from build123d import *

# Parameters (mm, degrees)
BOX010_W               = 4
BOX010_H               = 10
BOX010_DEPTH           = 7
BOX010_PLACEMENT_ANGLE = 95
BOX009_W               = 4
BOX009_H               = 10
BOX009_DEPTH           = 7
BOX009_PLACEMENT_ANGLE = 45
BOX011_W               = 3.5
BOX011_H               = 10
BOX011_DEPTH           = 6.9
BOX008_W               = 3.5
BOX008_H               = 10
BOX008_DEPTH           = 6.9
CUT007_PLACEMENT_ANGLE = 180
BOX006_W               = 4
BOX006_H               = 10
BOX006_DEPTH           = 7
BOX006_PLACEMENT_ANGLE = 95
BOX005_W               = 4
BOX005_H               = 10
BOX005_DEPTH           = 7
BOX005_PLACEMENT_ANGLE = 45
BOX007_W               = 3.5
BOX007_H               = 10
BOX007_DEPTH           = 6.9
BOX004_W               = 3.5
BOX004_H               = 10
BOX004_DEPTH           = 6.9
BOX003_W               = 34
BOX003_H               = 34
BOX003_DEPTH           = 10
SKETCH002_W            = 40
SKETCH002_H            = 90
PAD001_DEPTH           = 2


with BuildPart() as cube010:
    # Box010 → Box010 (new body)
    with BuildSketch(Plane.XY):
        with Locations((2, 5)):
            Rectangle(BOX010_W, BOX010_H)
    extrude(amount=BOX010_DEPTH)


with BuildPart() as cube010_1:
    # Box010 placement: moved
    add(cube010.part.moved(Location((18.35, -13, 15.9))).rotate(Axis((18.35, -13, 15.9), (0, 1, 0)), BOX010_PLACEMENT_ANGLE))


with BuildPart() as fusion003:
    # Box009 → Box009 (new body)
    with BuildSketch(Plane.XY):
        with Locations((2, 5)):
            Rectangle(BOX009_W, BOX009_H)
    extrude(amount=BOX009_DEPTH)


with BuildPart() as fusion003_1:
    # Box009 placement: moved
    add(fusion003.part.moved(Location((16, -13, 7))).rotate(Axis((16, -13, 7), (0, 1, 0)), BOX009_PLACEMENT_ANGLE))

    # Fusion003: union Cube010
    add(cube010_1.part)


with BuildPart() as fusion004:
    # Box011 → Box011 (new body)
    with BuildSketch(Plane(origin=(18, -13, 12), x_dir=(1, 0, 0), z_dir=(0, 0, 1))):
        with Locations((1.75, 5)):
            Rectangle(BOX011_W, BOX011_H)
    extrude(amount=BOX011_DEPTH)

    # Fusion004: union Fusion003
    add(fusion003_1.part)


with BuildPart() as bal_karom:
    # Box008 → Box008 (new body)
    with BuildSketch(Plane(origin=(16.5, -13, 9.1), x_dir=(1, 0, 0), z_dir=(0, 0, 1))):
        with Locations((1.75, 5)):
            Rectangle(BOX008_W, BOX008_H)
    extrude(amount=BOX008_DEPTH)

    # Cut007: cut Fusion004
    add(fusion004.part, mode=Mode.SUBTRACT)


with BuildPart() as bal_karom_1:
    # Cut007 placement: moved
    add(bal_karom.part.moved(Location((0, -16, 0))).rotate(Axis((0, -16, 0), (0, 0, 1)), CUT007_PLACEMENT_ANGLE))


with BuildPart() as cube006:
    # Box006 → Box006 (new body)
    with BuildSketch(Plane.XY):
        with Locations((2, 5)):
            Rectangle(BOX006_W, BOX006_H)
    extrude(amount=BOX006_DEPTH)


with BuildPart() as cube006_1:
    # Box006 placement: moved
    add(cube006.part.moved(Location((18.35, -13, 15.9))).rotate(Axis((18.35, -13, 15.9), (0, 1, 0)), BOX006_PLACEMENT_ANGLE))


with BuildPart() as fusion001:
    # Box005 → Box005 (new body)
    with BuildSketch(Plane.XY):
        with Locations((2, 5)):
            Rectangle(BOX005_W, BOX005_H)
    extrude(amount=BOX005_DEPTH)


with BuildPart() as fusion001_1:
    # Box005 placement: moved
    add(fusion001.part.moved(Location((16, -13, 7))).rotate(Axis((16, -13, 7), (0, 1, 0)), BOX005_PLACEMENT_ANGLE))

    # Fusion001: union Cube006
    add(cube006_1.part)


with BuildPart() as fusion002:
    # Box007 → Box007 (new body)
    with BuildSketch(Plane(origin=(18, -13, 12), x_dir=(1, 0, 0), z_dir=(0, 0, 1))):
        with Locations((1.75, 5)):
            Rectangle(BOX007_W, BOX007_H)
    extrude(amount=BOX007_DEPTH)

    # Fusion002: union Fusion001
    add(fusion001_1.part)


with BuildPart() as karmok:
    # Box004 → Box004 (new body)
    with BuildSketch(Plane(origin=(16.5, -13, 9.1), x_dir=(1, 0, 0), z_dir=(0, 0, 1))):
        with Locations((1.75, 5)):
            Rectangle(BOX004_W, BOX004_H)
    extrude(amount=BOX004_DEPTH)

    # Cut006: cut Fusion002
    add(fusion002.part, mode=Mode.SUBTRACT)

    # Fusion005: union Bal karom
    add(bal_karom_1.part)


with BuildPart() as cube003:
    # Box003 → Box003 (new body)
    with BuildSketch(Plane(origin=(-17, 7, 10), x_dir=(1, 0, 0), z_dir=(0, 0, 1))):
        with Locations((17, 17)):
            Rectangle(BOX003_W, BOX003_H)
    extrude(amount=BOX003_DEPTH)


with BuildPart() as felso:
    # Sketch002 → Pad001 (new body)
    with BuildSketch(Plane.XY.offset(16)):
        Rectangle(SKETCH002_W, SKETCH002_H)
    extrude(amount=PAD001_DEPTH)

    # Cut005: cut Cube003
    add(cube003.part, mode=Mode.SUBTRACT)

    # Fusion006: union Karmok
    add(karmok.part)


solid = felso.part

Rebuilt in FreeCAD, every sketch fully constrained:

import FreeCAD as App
import Part
import Sketcher
from FreeCAD import Vector


def add_polygon(sketch, points):
    """Adds a closed chain of lines whose ends are joined by coincident constraints."""
    first, n = sketch.GeometryCount, len(points)
    for a, b in zip(points, points[1:] + points[:1]):
        sketch.addGeometry(Part.LineSegment(App.Vector(*a, 0), App.Vector(*b, 0)), False)
    for i in range(n):
        sketch.addConstraint(Sketcher.Constraint("Coincident", first + i, 2, first + (i + 1) % n, 1))

doc = App.newDocument("Part")
body = doc.addObject("PartDesign::Body", "Body")

sketch1 = doc.addObject("Sketcher::SketchObject", "Sketch")
body.addObject(sketch1)
sketch1.AttachmentSupport = (doc.XY_Plane, [""])
sketch1.MapMode = "FlatFace"
add_polygon(sketch1, [(0, 10), (0, 0), (4, 0), (4, 10)])
sketch1.addConstraint([
    Sketcher.Constraint("Vertical", 0),
    Sketcher.Constraint("Horizontal", 1),
    Sketcher.Constraint("Vertical", 2),
    Sketcher.Constraint("Horizontal", 3),
    Sketcher.Constraint("Coincident", 0, 2, -1, 1),
    Sketcher.Constraint("DistanceX", 1, 1, 1, 2, 4.0),
    Sketcher.Constraint("DistanceY", 0, 2, 0, 1, 10.0),
])
pad1 = doc.addObject("PartDesign::Pad", "Pad")
body.addObject(pad1)
pad1.Profile = sketch1
pad1.Length = 7
body2 = doc.addObject("PartDesign::Body", "Body001")
doc.recompute()

body.Placement = App.Placement(Vector(18.35, -13, 15.9), App.Rotation(Vector(0, 1, 0), 95))
boolean = doc.addObject("PartDesign::Boolean", "Boolean")
body2.addObject(boolean)
boolean.Type = "Fuse"
boolean.addObjects([body])
body3 = doc.addObject("PartDesign::Body", "Body002")

sketch2 = doc.addObject("Sketcher::SketchObject", "Sketch001")
body3.addObject(sketch2)
sketch2.AttachmentSupport = (doc.getObject("XY_Plane002"), [""])
sketch2.MapMode = "FlatFace"
add_polygon(sketch2, [(0, 10), (0, 0), (4, 0), (4, 10)])
sketch2.addConstraint([
    Sketcher.Constraint("Vertical", 0),
    Sketcher.Constraint("Horizontal", 1),
    Sketcher.Constraint("Vertical", 2),
    Sketcher.Constraint("Horizontal", 3),
    Sketcher.Constraint("Coincident", 0, 2, -1, 1),
    Sketcher.Constraint("DistanceX", 1, 1, 1, 2, 4.0),
    Sketcher.Constraint("DistanceY", 0, 2, 0, 1, 10.0),
])
pad2 = doc.addObject("PartDesign::Pad", "Pad001")
body3.addObject(pad2)
pad2.Profile = sketch2
pad2.Length = 7
body4 = doc.addObject("PartDesign::Body", "Body003")
doc.recompute()

body3.Placement = App.Placement(Vector(16, -13, 7), App.Rotation(Vector(0, 1, 0), 45))
boolean2 = doc.addObject("PartDesign::Boolean", "Boolean001")
body4.addObject(boolean2)
boolean2.Type = "Fuse"
boolean2.addObjects([body3])
doc.recompute()

boolean3 = doc.addObject("PartDesign::Boolean", "Boolean002")
body4.addObject(boolean3)
boolean3.Type = "Fuse"
boolean3.addObjects([body2])
body5 = doc.addObject("PartDesign::Body", "Body004")

sketch3 = doc.addObject("Sketcher::SketchObject", "Sketch002")
body5.addObject(sketch3)
sketch3.AttachmentSupport = (doc.getObject("XY_Plane004"), [""])
sketch3.MapMode = "FlatFace"
sketch3.AttachmentOffset = App.Placement(Vector(0, 0, 12), App.Rotation())
add_polygon(sketch3, [(18, -3), (18, -13), (21.5, -13), (21.5, -3)])
sketch3.addConstraint([
    Sketcher.Constraint("Vertical", 0),
    Sketcher.Constraint("Horizontal", 1),
    Sketcher.Constraint("Vertical", 2),
    Sketcher.Constraint("Horizontal", 3),
    Sketcher.Constraint("DistanceY", 0, 2, 0, 1, 10.0),
    Sketcher.Constraint("DistanceX", 1, 1, 1, 2, 3.5),
    Sketcher.Constraint("DistanceX", -1, 1, 0, 2, 18.0),
    Sketcher.Constraint("DistanceY", 0, 2, -1, 1, 13.0),
])
pad3 = doc.addObject("PartDesign::Pad", "Pad002")
body5.addObject(pad3)
pad3.Profile = sketch3
pad3.Length = 6.9
doc.recompute()

boolean4 = doc.addObject("PartDesign::Boolean", "Boolean003")
body5.addObject(boolean4)
boolean4.Type = "Fuse"
boolean4.addObjects([body4])
body6 = doc.addObject("PartDesign::Body", "Body005")

sketch4 = doc.addObject("Sketcher::SketchObject", "Sketch003")
body6.addObject(sketch4)
sketch4.AttachmentSupport = (doc.getObject("XY_Plane005"), [""])
sketch4.MapMode = "FlatFace"
sketch4.AttachmentOffset = App.Placement(Vector(0, 0, 9.1), App.Rotation())
add_polygon(sketch4, [(16.5, -3), (16.5, -13), (20, -13), (20, -3)])
sketch4.addConstraint([
    Sketcher.Constraint("Vertical", 0),
    Sketcher.Constraint("Horizontal", 1),
    Sketcher.Constraint("Vertical", 2),
    Sketcher.Constraint("Horizontal", 3),
    Sketcher.Constraint("DistanceY", 0, 2, 0, 1, 10.0),
    Sketcher.Constraint("DistanceX", 1, 1, 1, 2, 3.5),
    Sketcher.Constraint("DistanceY", 0, 2, -1, 1, 13.0),
    Sketcher.Constraint("DistanceX", -1, 1, 1, 2, 20.0),
])
pad4 = doc.addObject("PartDesign::Pad", "Pad003")
body6.addObject(pad4)
pad4.Profile = sketch4
pad4.Length = 6.9
doc.recompute()

boolean5 = doc.addObject("PartDesign::Boolean", "Boolean004")
body6.addObject(boolean5)
boolean5.Type = "Cut"
boolean5.addObjects([body5])
body7 = doc.addObject("PartDesign::Body", "Body006")
doc.recompute()

body6.Placement = App.Placement(Vector(0, -16, 0), App.Rotation(Vector(0, 0, 1), 180))
boolean6 = doc.addObject("PartDesign::Boolean", "Boolean005")
body7.addObject(boolean6)
boolean6.Type = "Fuse"
boolean6.addObjects([body6])
body8 = doc.addObject("PartDesign::Body", "Body007")

sketch5 = doc.addObject("Sketcher::SketchObject", "Sketch004")
body8.addObject(sketch5)
sketch5.AttachmentSupport = (doc.getObject("XY_Plane007"), [""])
sketch5.MapMode = "FlatFace"
add_polygon(sketch5, [(0, 10), (0, 0), (4, 0), (4, 10)])
sketch5.addConstraint([
    Sketcher.Constraint("Vertical", 0),
    Sketcher.Constraint("Horizontal", 1),
    Sketcher.Constraint("Vertical", 2),
    Sketcher.Constraint("Horizontal", 3),
    Sketcher.Constraint("Coincident", 0, 2, -1, 1),
    Sketcher.Constraint("DistanceX", 1, 1, 1, 2, 4.0),
    Sketcher.Constraint("DistanceY", 0, 2, 0, 1, 10.0),
])
pad5 = doc.addObject("PartDesign::Pad", "Pad004")
body8.addObject(pad5)
pad5.Profile = sketch5
pad5.Length = 7
body9 = doc.addObject("PartDesign::Body", "Body008")
doc.recompute()

body8.Placement = App.Placement(Vector(18.35, -13, 15.9), App.Rotation(Vector(0, 1, 0), 95))
boolean7 = doc.addObject("PartDesign::Boolean", "Boolean006")
body9.addObject(boolean7)
boolean7.Type = "Fuse"
boolean7.addObjects([body8])
body10 = doc.addObject("PartDesign::Body", "Body009")

sketch6 = doc.addObject("Sketcher::SketchObject", "Sketch005")
body10.addObject(sketch6)
sketch6.AttachmentSupport = (doc.getObject("XY_Plane009"), [""])
sketch6.MapMode = "FlatFace"
add_polygon(sketch6, [(0, 10), (0, 0), (4, 0), (4, 10)])
sketch6.addConstraint([
    Sketcher.Constraint("Vertical", 0),
    Sketcher.Constraint("Horizontal", 1),
    Sketcher.Constraint("Vertical", 2),
    Sketcher.Constraint("Horizontal", 3),
    Sketcher.Constraint("Coincident", 0, 2, -1, 1),
    Sketcher.Constraint("DistanceX", 1, 1, 1, 2, 4.0),
    Sketcher.Constraint("DistanceY", 0, 2, 0, 1, 10.0),
])
pad6 = doc.addObject("PartDesign::Pad", "Pad005")
body10.addObject(pad6)
pad6.Profile = sketch6
pad6.Length = 7
body11 = doc.addObject("PartDesign::Body", "Body010")
doc.recompute()

body10.Placement = App.Placement(Vector(16, -13, 7), App.Rotation(Vector(0, 1, 0), 45))
boolean8 = doc.addObject("PartDesign::Boolean", "Boolean007")
body11.addObject(boolean8)
boolean8.Type = "Fuse"
boolean8.addObjects([body10])
doc.recompute()

boolean9 = doc.addObject("PartDesign::Boolean", "Boolean008")
body11.addObject(boolean9)
boolean9.Type = "Fuse"
boolean9.addObjects([body9])
body12 = doc.addObject("PartDesign::Body", "Body011")

sketch7 = doc.addObject("Sketcher::SketchObject", "Sketch006")
body12.addObject(sketch7)
sketch7.AttachmentSupport = (doc.getObject("XY_Plane011"), [""])
sketch7.MapMode = "FlatFace"
sketch7.AttachmentOffset = App.Placement(Vector(0, 0, 12), App.Rotation())
add_polygon(sketch7, [(18, -3), (18, -13), (21.5, -13), (21.5, -3)])
sketch7.addConstraint([
    Sketcher.Constraint("Vertical", 0),
    Sketcher.Constraint("Horizontal", 1),
    Sketcher.Constraint("Vertical", 2),
    Sketcher.Constraint("Horizontal", 3),
    Sketcher.Constraint("DistanceY", 0, 2, 0, 1, 10.0),
    Sketcher.Constraint("DistanceX", 1, 1, 1, 2, 3.5),
    Sketcher.Constraint("DistanceX", -1, 1, 0, 2, 18.0),
    Sketcher.Constraint("DistanceY", 0, 2, -1, 1, 13.0),
])
pad7 = doc.addObject("PartDesign::Pad", "Pad006")
body12.addObject(pad7)
pad7.Profile = sketch7
pad7.Length = 6.9
doc.recompute()

boolean10 = doc.addObject("PartDesign::Boolean", "Boolean009")
body12.addObject(boolean10)
boolean10.Type = "Fuse"
boolean10.addObjects([body11])
body13 = doc.addObject("PartDesign::Body", "Body012")
body13.AllowCompound = True

sketch8 = doc.addObject("Sketcher::SketchObject", "Sketch007")
body13.addObject(sketch8)
sketch8.AttachmentSupport = (doc.getObject("XY_Plane012"), [""])
sketch8.MapMode = "FlatFace"
sketch8.AttachmentOffset = App.Placement(Vector(0, 0, 9.1), App.Rotation())
add_polygon(sketch8, [(16.5, -3), (16.5, -13), (20, -13), (20, -3)])
sketch8.addConstraint([
    Sketcher.Constraint("Vertical", 0),
    Sketcher.Constraint("Horizontal", 1),
    Sketcher.Constraint("Vertical", 2),
    Sketcher.Constraint("Horizontal", 3),
    Sketcher.Constraint("DistanceY", 0, 2, 0, 1, 10.0),
    Sketcher.Constraint("DistanceX", 1, 1, 1, 2, 3.5),
    Sketcher.Constraint("DistanceY", 0, 2, -1, 1, 13.0),
    Sketcher.Constraint("DistanceX", -1, 1, 1, 2, 20.0),
])
pad8 = doc.addObject("PartDesign::Pad", "Pad007")
body13.addObject(pad8)
pad8.Profile = sketch8
pad8.Length = 6.9
doc.recompute()

boolean11 = doc.addObject("PartDesign::Boolean", "Boolean010")
body13.addObject(boolean11)
boolean11.Type = "Cut"
boolean11.addObjects([body12])
doc.recompute()

boolean12 = doc.addObject("PartDesign::Boolean", "Boolean011")
body13.addObject(boolean12)
boolean12.Type = "Fuse"
boolean12.addObjects([body7])
body14 = doc.addObject("PartDesign::Body", "Body013")

sketch9 = doc.addObject("Sketcher::SketchObject", "Sketch008")
body14.addObject(sketch9)
sketch9.AttachmentSupport = (doc.getObject("XY_Plane013"), [""])
sketch9.MapMode = "FlatFace"
sketch9.AttachmentOffset = App.Placement(Vector(0, 0, 10), App.Rotation())
add_polygon(sketch9, [(-17, 41), (-17, 7), (17, 7), (17, 41)])
sketch9.addConstraint([
    Sketcher.Constraint("Vertical", 0),
    Sketcher.Constraint("Horizontal", 1),
    Sketcher.Constraint("Vertical", 2),
    Sketcher.Constraint("Horizontal", 3),
    Sketcher.Constraint("Equal", 3, 0),
    Sketcher.Constraint("DistanceX", 1, 1, 1, 2, 34.0),
    Sketcher.Constraint("DistanceX", 0, 2, -1, 1, 17.0),
    Sketcher.Constraint("DistanceY", -1, 1, 0, 2, 7.0),
])
pad9 = doc.addObject("PartDesign::Pad", "Pad008")
body14.addObject(pad9)
pad9.Profile = sketch9
pad9.Length = 10
body15 = doc.addObject("PartDesign::Body", "Body014")

sketch10 = doc.addObject("Sketcher::SketchObject", "Sketch009")
body15.addObject(sketch10)
sketch10.AttachmentSupport = (doc.getObject("XY_Plane014"), [""])
sketch10.MapMode = "FlatFace"
sketch10.AttachmentOffset = App.Placement(Vector(0, 0, 16), App.Rotation())
add_polygon(sketch10, [(-20, 45), (-20, -45), (20, -45), (20, 45)])
sketch10.addConstraint([
    Sketcher.Constraint("Vertical", 0),
    Sketcher.Constraint("Horizontal", 1),
    Sketcher.Constraint("Vertical", 2),
    Sketcher.Constraint("Horizontal", 3),
    Sketcher.Constraint("Symmetric", 0, 2, 2, 2, -1, 1),
    Sketcher.Constraint("DistanceX", 1, 1, 1, 2, 40.0),
    Sketcher.Constraint("DistanceY", 0, 2, 0, 1, 90.0),
])
pad10 = doc.addObject("PartDesign::Pad", "Pad009")
body15.addObject(pad10)
pad10.Profile = sketch10
pad10.Length = 2
doc.recompute()

boolean13 = doc.addObject("PartDesign::Boolean", "Boolean012")
body15.addObject(boolean13)
boolean13.Type = "Cut"
boolean13.addObjects([body14])
doc.recompute()

boolean14 = doc.addObject("PartDesign::Boolean", "Boolean013")
body15.addObject(boolean14)
boolean14.Type = "Fuse"
boolean14.addObjects([body13])

doc.recompute()
